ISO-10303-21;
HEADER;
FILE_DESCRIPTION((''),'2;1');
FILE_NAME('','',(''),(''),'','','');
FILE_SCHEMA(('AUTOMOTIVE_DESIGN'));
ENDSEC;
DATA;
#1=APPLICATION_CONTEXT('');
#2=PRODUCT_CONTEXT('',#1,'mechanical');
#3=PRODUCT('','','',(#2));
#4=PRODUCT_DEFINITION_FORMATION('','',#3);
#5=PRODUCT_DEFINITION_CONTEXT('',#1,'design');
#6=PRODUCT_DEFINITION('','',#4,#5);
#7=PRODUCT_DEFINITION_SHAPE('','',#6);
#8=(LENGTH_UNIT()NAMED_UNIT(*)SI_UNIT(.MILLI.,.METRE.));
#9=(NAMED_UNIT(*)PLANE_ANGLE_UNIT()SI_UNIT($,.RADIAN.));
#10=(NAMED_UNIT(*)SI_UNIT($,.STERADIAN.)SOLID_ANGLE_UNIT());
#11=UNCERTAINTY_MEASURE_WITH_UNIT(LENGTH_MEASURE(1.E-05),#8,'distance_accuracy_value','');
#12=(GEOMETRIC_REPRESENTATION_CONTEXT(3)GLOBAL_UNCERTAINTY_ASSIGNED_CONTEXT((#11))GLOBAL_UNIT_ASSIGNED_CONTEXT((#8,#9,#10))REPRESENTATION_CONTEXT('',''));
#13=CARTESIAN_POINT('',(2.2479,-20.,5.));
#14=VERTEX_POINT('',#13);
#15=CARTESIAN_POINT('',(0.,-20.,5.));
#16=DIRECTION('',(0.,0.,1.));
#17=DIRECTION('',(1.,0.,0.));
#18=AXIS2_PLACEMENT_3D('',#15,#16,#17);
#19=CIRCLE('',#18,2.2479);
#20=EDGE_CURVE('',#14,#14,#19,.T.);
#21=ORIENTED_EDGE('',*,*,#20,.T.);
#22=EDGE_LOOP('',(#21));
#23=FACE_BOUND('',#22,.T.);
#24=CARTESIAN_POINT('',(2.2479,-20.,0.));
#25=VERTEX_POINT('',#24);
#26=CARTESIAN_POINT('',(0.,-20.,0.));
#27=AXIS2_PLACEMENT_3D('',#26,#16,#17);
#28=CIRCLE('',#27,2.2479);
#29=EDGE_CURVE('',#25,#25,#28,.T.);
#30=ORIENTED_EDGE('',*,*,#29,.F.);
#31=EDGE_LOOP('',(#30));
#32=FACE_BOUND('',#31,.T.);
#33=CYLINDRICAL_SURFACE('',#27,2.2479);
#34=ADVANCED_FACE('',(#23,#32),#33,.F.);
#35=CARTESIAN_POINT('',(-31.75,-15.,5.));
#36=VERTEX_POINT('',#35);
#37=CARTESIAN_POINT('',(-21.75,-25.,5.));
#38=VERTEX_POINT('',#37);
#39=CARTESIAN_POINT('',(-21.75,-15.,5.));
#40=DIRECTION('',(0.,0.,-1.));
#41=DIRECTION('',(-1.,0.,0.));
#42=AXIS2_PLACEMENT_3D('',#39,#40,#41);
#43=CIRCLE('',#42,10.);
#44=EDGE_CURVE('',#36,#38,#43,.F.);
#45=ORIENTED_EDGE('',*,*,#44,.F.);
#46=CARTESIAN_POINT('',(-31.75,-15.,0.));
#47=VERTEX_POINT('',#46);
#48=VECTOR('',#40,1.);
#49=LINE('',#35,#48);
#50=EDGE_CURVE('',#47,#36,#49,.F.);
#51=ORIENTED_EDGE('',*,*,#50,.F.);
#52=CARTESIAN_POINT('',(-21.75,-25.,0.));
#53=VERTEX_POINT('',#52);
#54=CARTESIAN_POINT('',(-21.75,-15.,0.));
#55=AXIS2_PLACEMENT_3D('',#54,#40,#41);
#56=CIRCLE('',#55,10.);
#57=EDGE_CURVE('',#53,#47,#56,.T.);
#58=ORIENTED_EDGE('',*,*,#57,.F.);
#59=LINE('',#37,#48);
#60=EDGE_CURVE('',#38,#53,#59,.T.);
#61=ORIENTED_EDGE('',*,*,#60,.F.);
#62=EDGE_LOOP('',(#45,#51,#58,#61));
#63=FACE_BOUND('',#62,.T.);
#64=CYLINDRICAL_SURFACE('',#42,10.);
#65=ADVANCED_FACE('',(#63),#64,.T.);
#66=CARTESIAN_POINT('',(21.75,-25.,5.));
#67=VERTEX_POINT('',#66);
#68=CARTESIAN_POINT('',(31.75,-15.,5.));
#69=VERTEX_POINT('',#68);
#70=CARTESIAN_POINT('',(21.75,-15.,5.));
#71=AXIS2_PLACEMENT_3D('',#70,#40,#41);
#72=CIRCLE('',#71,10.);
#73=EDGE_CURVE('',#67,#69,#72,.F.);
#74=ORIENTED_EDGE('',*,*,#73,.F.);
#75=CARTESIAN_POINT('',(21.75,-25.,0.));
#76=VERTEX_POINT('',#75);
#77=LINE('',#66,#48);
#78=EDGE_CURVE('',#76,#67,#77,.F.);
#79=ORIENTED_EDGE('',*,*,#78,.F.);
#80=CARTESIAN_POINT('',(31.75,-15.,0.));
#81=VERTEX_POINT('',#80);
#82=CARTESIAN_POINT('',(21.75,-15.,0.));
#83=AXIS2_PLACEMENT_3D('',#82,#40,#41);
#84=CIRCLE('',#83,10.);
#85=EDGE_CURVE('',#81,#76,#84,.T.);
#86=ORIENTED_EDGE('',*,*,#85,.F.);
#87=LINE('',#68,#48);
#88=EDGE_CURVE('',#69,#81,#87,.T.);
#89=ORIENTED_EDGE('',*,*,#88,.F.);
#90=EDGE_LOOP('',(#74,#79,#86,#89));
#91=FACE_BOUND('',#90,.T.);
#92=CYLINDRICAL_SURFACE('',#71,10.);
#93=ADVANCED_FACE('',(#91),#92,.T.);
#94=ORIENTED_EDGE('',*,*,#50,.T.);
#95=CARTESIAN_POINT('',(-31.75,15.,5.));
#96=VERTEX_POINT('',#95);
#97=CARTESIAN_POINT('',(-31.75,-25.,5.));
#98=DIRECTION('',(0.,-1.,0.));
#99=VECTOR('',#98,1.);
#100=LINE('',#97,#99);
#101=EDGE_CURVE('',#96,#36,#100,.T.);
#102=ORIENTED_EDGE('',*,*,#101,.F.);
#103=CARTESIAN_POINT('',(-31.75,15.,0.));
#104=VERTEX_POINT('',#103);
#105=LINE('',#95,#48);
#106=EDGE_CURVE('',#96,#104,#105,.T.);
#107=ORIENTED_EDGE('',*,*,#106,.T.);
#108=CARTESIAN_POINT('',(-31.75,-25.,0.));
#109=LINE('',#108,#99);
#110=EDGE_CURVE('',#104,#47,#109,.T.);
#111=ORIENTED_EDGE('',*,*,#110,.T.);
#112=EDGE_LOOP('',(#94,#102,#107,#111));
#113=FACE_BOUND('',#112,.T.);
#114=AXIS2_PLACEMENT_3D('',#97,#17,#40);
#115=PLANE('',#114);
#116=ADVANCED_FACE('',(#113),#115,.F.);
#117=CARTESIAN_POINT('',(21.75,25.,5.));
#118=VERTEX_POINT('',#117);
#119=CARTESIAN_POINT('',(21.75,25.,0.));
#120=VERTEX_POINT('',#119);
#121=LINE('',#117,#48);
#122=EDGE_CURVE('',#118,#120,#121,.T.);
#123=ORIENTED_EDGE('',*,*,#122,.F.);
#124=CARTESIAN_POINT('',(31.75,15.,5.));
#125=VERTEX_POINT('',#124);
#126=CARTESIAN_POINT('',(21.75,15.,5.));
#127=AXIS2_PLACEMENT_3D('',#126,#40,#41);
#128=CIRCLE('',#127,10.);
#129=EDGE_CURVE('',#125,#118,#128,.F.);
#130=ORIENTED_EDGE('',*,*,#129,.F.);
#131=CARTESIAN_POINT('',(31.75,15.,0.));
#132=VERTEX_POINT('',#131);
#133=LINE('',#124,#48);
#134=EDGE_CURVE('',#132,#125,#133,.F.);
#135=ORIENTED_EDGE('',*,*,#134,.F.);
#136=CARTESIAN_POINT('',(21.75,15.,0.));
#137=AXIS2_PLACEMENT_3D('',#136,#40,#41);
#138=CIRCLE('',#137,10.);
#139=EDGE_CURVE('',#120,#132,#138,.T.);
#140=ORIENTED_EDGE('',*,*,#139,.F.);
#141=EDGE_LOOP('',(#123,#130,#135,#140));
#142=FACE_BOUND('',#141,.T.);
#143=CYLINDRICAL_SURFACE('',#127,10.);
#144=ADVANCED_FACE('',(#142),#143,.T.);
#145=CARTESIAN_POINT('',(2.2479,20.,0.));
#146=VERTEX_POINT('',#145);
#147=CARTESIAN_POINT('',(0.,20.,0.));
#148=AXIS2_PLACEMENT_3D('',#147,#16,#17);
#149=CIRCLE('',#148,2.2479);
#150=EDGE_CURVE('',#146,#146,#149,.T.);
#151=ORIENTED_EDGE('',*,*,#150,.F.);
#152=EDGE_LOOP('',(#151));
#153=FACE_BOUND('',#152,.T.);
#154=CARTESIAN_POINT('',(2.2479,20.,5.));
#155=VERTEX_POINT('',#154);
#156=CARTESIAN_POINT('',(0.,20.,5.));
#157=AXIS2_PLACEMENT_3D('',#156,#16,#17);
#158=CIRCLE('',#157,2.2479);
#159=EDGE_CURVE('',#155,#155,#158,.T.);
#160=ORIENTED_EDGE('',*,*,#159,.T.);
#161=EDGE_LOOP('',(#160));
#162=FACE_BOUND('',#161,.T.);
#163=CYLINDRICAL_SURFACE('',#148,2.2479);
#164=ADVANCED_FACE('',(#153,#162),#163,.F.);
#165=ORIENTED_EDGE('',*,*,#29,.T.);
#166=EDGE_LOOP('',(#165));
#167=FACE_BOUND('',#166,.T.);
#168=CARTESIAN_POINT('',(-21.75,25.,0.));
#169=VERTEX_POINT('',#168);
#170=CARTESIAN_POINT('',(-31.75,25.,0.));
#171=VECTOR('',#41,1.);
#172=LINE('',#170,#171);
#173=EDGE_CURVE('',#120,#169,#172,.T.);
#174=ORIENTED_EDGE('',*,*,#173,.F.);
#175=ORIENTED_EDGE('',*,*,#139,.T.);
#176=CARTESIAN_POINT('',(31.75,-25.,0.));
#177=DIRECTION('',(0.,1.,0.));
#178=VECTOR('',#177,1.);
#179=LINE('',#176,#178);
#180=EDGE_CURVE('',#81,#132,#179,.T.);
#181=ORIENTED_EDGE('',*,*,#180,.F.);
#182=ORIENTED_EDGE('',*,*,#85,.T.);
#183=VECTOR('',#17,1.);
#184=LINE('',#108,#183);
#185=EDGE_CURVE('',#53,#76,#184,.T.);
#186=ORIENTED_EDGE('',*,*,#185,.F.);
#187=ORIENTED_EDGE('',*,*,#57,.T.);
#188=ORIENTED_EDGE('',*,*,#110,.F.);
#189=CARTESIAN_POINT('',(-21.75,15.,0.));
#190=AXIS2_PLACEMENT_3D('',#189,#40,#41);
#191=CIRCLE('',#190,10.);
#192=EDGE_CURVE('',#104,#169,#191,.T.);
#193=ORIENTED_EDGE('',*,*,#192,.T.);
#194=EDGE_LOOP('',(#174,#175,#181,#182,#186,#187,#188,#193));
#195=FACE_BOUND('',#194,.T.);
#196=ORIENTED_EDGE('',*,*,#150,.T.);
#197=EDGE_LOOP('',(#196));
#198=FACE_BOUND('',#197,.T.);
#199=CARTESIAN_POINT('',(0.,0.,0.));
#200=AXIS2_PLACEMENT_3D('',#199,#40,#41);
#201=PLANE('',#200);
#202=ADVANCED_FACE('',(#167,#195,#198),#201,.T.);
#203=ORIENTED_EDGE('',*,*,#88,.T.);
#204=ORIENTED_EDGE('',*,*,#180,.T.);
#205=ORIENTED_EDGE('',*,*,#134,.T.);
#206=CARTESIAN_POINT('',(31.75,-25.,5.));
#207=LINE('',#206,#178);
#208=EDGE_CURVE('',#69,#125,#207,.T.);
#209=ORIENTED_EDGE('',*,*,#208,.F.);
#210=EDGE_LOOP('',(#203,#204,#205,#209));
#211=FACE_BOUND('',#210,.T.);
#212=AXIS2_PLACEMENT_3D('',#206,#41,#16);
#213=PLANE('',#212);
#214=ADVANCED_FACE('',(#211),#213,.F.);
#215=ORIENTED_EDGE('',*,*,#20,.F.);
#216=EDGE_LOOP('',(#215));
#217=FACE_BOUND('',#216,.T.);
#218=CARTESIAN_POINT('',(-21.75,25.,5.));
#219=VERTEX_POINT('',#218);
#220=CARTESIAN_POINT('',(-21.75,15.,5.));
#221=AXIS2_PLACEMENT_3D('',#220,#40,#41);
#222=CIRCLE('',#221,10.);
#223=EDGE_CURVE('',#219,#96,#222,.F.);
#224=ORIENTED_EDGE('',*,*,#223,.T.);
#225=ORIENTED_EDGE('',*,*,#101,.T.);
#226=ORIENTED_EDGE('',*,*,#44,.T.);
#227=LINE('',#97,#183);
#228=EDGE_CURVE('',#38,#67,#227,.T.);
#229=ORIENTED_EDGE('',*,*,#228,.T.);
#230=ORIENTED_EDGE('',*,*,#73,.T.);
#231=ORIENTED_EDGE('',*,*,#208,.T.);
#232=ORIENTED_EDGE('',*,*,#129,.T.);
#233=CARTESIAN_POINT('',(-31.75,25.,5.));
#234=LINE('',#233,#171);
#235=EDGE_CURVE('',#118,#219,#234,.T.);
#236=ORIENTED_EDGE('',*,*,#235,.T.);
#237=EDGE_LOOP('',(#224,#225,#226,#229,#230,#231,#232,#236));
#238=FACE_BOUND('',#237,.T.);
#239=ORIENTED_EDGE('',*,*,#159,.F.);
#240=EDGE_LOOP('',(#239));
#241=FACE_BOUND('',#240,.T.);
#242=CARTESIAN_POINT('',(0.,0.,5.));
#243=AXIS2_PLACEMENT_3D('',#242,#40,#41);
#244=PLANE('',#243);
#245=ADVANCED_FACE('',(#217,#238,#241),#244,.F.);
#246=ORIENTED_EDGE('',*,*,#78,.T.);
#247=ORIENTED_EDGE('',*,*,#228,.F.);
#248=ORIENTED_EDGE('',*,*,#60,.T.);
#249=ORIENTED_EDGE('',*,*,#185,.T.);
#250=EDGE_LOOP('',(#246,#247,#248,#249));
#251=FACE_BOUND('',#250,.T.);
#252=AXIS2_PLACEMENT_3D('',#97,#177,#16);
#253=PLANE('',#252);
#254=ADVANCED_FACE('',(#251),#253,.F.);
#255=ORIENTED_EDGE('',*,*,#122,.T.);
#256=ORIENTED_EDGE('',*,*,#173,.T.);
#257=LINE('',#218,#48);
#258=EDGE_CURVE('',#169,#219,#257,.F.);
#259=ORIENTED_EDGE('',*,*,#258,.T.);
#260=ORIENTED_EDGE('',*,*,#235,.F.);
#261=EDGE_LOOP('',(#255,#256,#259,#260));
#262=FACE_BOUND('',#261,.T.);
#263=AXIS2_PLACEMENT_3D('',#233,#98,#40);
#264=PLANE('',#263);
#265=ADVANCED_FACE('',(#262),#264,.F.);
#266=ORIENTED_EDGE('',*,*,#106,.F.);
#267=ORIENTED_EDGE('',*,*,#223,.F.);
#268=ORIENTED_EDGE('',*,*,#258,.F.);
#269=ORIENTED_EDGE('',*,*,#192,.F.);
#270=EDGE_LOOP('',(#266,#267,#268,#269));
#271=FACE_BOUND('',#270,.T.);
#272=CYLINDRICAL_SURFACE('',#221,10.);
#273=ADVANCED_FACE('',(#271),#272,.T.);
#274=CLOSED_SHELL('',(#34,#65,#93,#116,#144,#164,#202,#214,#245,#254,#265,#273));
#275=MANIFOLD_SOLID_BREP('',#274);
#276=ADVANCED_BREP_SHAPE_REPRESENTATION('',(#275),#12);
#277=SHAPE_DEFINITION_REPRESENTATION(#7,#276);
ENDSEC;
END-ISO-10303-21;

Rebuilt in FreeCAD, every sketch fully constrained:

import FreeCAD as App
import Part
import Sketcher
from FreeCAD import Vector


def edges_at(feature, points):
    """Names of the edges that pass closest to the given points."""
    edges = feature.Shape.Edges
    near = lambda p: min(range(len(edges)), key=lambda i: edges[i].distToShape(Part.Vertex(*p))[0])
    return sorted({f"Edge{near(p) + 1}" for p in points})


def add_polygon(sketch, points):
    """Adds a closed chain of lines whose ends are joined by coincident constraints."""
    first, n = sketch.GeometryCount, len(points)
    for a, b in zip(points, points[1:] + points[:1]):
        sketch.addGeometry(Part.LineSegment(App.Vector(*a, 0), App.Vector(*b, 0)), False)
    for i in range(n):
        sketch.addConstraint(Sketcher.Constraint("Coincident", first + i, 2, first + (i + 1) % n, 1))

doc = App.newDocument("Part")
body = doc.addObject("PartDesign::Body", "Body")

# Sketch on XY plane
sketch1 = body.newObject("Sketcher::SketchObject", "Sketch")
sketch1.AttachmentSupport = (doc.getObject("XY_Plane"), [""])
sketch1.MapMode = "FlatFace"
add_polygon(sketch1, [(-32, 25), (-32, -25), (32, -25), (32, 25)])  # lines 0-3
sketch1.addConstraint(Sketcher.Constraint("Vertical", 0))
sketch1.addConstraint(Sketcher.Constraint("Horizontal", 1))
sketch1.addConstraint(Sketcher.Constraint("Vertical", 2))
sketch1.addConstraint(Sketcher.Constraint("Horizontal", 3))
sketch1.addConstraint(Sketcher.Constraint("Symmetric", 0, 2, 2, 2, -1, 1))
sketch1.addConstraint(Sketcher.Constraint("DistanceY", 0, 2, 0, 1, 50.0))
sketch1.addConstraint(Sketcher.Constraint("DistanceX", 1, 1, 1, 2, 63.5))
pad1 = body.newObject("PartDesign::Pad", "Pad")
pad1.Profile = sketch1
pad1.Length = 5
doc.recompute()

fillet = body.newObject("PartDesign::Fillet", "Fillet")
fillet.Base = (pad1, edges_at(pad1, [
    (31.75, -25, 2.5),
    (-31.75, -25, 2.5),
    (-31.75, 25, 2.5),
    (31.75, 25, 2.5),
]))
fillet.Radius = 10

# Sketch on XY plane
sketch2 = body.newObject("Sketcher::SketchObject", "Sketch001")
sketch2.AttachmentSupport = (doc.getObject("XY_Plane"), [""])
sketch2.MapMode = "FlatFace"
sketch2.AttachmentOffset = App.Placement(Vector(0, 0, 5), App.Rotation())
sketch2.addGeometry(Part.Circle(Vector(0, 20, 0), Vector(0, 0, 1), 2.2), False)
sketch2.addGeometry(Part.Circle(Vector(0, -20, 0), Vector(0, 0, 1), 2.2), False)
sketch2.addConstraint(Sketcher.Constraint("Equal", 0, 1))
sketch2.addConstraint(Sketcher.Constraint("Symmetric", 0, 3, 1, 3, -1, 1))
sketch2.addConstraint(Sketcher.Constraint("PointOnObject", 0, 3, -2))
sketch2.addConstraint(Sketcher.Constraint("DistanceY", -1, 1, 0, 3, 20.0))
sketch2.addConstraint(Sketcher.Constraint("Diameter", 0, 4.4958))
pocket1 = body.newObject("PartDesign::Pocket", "Pocket")
pocket1.Profile = sketch2
pocket1.Type = "ThroughAll"

doc.recompute()
